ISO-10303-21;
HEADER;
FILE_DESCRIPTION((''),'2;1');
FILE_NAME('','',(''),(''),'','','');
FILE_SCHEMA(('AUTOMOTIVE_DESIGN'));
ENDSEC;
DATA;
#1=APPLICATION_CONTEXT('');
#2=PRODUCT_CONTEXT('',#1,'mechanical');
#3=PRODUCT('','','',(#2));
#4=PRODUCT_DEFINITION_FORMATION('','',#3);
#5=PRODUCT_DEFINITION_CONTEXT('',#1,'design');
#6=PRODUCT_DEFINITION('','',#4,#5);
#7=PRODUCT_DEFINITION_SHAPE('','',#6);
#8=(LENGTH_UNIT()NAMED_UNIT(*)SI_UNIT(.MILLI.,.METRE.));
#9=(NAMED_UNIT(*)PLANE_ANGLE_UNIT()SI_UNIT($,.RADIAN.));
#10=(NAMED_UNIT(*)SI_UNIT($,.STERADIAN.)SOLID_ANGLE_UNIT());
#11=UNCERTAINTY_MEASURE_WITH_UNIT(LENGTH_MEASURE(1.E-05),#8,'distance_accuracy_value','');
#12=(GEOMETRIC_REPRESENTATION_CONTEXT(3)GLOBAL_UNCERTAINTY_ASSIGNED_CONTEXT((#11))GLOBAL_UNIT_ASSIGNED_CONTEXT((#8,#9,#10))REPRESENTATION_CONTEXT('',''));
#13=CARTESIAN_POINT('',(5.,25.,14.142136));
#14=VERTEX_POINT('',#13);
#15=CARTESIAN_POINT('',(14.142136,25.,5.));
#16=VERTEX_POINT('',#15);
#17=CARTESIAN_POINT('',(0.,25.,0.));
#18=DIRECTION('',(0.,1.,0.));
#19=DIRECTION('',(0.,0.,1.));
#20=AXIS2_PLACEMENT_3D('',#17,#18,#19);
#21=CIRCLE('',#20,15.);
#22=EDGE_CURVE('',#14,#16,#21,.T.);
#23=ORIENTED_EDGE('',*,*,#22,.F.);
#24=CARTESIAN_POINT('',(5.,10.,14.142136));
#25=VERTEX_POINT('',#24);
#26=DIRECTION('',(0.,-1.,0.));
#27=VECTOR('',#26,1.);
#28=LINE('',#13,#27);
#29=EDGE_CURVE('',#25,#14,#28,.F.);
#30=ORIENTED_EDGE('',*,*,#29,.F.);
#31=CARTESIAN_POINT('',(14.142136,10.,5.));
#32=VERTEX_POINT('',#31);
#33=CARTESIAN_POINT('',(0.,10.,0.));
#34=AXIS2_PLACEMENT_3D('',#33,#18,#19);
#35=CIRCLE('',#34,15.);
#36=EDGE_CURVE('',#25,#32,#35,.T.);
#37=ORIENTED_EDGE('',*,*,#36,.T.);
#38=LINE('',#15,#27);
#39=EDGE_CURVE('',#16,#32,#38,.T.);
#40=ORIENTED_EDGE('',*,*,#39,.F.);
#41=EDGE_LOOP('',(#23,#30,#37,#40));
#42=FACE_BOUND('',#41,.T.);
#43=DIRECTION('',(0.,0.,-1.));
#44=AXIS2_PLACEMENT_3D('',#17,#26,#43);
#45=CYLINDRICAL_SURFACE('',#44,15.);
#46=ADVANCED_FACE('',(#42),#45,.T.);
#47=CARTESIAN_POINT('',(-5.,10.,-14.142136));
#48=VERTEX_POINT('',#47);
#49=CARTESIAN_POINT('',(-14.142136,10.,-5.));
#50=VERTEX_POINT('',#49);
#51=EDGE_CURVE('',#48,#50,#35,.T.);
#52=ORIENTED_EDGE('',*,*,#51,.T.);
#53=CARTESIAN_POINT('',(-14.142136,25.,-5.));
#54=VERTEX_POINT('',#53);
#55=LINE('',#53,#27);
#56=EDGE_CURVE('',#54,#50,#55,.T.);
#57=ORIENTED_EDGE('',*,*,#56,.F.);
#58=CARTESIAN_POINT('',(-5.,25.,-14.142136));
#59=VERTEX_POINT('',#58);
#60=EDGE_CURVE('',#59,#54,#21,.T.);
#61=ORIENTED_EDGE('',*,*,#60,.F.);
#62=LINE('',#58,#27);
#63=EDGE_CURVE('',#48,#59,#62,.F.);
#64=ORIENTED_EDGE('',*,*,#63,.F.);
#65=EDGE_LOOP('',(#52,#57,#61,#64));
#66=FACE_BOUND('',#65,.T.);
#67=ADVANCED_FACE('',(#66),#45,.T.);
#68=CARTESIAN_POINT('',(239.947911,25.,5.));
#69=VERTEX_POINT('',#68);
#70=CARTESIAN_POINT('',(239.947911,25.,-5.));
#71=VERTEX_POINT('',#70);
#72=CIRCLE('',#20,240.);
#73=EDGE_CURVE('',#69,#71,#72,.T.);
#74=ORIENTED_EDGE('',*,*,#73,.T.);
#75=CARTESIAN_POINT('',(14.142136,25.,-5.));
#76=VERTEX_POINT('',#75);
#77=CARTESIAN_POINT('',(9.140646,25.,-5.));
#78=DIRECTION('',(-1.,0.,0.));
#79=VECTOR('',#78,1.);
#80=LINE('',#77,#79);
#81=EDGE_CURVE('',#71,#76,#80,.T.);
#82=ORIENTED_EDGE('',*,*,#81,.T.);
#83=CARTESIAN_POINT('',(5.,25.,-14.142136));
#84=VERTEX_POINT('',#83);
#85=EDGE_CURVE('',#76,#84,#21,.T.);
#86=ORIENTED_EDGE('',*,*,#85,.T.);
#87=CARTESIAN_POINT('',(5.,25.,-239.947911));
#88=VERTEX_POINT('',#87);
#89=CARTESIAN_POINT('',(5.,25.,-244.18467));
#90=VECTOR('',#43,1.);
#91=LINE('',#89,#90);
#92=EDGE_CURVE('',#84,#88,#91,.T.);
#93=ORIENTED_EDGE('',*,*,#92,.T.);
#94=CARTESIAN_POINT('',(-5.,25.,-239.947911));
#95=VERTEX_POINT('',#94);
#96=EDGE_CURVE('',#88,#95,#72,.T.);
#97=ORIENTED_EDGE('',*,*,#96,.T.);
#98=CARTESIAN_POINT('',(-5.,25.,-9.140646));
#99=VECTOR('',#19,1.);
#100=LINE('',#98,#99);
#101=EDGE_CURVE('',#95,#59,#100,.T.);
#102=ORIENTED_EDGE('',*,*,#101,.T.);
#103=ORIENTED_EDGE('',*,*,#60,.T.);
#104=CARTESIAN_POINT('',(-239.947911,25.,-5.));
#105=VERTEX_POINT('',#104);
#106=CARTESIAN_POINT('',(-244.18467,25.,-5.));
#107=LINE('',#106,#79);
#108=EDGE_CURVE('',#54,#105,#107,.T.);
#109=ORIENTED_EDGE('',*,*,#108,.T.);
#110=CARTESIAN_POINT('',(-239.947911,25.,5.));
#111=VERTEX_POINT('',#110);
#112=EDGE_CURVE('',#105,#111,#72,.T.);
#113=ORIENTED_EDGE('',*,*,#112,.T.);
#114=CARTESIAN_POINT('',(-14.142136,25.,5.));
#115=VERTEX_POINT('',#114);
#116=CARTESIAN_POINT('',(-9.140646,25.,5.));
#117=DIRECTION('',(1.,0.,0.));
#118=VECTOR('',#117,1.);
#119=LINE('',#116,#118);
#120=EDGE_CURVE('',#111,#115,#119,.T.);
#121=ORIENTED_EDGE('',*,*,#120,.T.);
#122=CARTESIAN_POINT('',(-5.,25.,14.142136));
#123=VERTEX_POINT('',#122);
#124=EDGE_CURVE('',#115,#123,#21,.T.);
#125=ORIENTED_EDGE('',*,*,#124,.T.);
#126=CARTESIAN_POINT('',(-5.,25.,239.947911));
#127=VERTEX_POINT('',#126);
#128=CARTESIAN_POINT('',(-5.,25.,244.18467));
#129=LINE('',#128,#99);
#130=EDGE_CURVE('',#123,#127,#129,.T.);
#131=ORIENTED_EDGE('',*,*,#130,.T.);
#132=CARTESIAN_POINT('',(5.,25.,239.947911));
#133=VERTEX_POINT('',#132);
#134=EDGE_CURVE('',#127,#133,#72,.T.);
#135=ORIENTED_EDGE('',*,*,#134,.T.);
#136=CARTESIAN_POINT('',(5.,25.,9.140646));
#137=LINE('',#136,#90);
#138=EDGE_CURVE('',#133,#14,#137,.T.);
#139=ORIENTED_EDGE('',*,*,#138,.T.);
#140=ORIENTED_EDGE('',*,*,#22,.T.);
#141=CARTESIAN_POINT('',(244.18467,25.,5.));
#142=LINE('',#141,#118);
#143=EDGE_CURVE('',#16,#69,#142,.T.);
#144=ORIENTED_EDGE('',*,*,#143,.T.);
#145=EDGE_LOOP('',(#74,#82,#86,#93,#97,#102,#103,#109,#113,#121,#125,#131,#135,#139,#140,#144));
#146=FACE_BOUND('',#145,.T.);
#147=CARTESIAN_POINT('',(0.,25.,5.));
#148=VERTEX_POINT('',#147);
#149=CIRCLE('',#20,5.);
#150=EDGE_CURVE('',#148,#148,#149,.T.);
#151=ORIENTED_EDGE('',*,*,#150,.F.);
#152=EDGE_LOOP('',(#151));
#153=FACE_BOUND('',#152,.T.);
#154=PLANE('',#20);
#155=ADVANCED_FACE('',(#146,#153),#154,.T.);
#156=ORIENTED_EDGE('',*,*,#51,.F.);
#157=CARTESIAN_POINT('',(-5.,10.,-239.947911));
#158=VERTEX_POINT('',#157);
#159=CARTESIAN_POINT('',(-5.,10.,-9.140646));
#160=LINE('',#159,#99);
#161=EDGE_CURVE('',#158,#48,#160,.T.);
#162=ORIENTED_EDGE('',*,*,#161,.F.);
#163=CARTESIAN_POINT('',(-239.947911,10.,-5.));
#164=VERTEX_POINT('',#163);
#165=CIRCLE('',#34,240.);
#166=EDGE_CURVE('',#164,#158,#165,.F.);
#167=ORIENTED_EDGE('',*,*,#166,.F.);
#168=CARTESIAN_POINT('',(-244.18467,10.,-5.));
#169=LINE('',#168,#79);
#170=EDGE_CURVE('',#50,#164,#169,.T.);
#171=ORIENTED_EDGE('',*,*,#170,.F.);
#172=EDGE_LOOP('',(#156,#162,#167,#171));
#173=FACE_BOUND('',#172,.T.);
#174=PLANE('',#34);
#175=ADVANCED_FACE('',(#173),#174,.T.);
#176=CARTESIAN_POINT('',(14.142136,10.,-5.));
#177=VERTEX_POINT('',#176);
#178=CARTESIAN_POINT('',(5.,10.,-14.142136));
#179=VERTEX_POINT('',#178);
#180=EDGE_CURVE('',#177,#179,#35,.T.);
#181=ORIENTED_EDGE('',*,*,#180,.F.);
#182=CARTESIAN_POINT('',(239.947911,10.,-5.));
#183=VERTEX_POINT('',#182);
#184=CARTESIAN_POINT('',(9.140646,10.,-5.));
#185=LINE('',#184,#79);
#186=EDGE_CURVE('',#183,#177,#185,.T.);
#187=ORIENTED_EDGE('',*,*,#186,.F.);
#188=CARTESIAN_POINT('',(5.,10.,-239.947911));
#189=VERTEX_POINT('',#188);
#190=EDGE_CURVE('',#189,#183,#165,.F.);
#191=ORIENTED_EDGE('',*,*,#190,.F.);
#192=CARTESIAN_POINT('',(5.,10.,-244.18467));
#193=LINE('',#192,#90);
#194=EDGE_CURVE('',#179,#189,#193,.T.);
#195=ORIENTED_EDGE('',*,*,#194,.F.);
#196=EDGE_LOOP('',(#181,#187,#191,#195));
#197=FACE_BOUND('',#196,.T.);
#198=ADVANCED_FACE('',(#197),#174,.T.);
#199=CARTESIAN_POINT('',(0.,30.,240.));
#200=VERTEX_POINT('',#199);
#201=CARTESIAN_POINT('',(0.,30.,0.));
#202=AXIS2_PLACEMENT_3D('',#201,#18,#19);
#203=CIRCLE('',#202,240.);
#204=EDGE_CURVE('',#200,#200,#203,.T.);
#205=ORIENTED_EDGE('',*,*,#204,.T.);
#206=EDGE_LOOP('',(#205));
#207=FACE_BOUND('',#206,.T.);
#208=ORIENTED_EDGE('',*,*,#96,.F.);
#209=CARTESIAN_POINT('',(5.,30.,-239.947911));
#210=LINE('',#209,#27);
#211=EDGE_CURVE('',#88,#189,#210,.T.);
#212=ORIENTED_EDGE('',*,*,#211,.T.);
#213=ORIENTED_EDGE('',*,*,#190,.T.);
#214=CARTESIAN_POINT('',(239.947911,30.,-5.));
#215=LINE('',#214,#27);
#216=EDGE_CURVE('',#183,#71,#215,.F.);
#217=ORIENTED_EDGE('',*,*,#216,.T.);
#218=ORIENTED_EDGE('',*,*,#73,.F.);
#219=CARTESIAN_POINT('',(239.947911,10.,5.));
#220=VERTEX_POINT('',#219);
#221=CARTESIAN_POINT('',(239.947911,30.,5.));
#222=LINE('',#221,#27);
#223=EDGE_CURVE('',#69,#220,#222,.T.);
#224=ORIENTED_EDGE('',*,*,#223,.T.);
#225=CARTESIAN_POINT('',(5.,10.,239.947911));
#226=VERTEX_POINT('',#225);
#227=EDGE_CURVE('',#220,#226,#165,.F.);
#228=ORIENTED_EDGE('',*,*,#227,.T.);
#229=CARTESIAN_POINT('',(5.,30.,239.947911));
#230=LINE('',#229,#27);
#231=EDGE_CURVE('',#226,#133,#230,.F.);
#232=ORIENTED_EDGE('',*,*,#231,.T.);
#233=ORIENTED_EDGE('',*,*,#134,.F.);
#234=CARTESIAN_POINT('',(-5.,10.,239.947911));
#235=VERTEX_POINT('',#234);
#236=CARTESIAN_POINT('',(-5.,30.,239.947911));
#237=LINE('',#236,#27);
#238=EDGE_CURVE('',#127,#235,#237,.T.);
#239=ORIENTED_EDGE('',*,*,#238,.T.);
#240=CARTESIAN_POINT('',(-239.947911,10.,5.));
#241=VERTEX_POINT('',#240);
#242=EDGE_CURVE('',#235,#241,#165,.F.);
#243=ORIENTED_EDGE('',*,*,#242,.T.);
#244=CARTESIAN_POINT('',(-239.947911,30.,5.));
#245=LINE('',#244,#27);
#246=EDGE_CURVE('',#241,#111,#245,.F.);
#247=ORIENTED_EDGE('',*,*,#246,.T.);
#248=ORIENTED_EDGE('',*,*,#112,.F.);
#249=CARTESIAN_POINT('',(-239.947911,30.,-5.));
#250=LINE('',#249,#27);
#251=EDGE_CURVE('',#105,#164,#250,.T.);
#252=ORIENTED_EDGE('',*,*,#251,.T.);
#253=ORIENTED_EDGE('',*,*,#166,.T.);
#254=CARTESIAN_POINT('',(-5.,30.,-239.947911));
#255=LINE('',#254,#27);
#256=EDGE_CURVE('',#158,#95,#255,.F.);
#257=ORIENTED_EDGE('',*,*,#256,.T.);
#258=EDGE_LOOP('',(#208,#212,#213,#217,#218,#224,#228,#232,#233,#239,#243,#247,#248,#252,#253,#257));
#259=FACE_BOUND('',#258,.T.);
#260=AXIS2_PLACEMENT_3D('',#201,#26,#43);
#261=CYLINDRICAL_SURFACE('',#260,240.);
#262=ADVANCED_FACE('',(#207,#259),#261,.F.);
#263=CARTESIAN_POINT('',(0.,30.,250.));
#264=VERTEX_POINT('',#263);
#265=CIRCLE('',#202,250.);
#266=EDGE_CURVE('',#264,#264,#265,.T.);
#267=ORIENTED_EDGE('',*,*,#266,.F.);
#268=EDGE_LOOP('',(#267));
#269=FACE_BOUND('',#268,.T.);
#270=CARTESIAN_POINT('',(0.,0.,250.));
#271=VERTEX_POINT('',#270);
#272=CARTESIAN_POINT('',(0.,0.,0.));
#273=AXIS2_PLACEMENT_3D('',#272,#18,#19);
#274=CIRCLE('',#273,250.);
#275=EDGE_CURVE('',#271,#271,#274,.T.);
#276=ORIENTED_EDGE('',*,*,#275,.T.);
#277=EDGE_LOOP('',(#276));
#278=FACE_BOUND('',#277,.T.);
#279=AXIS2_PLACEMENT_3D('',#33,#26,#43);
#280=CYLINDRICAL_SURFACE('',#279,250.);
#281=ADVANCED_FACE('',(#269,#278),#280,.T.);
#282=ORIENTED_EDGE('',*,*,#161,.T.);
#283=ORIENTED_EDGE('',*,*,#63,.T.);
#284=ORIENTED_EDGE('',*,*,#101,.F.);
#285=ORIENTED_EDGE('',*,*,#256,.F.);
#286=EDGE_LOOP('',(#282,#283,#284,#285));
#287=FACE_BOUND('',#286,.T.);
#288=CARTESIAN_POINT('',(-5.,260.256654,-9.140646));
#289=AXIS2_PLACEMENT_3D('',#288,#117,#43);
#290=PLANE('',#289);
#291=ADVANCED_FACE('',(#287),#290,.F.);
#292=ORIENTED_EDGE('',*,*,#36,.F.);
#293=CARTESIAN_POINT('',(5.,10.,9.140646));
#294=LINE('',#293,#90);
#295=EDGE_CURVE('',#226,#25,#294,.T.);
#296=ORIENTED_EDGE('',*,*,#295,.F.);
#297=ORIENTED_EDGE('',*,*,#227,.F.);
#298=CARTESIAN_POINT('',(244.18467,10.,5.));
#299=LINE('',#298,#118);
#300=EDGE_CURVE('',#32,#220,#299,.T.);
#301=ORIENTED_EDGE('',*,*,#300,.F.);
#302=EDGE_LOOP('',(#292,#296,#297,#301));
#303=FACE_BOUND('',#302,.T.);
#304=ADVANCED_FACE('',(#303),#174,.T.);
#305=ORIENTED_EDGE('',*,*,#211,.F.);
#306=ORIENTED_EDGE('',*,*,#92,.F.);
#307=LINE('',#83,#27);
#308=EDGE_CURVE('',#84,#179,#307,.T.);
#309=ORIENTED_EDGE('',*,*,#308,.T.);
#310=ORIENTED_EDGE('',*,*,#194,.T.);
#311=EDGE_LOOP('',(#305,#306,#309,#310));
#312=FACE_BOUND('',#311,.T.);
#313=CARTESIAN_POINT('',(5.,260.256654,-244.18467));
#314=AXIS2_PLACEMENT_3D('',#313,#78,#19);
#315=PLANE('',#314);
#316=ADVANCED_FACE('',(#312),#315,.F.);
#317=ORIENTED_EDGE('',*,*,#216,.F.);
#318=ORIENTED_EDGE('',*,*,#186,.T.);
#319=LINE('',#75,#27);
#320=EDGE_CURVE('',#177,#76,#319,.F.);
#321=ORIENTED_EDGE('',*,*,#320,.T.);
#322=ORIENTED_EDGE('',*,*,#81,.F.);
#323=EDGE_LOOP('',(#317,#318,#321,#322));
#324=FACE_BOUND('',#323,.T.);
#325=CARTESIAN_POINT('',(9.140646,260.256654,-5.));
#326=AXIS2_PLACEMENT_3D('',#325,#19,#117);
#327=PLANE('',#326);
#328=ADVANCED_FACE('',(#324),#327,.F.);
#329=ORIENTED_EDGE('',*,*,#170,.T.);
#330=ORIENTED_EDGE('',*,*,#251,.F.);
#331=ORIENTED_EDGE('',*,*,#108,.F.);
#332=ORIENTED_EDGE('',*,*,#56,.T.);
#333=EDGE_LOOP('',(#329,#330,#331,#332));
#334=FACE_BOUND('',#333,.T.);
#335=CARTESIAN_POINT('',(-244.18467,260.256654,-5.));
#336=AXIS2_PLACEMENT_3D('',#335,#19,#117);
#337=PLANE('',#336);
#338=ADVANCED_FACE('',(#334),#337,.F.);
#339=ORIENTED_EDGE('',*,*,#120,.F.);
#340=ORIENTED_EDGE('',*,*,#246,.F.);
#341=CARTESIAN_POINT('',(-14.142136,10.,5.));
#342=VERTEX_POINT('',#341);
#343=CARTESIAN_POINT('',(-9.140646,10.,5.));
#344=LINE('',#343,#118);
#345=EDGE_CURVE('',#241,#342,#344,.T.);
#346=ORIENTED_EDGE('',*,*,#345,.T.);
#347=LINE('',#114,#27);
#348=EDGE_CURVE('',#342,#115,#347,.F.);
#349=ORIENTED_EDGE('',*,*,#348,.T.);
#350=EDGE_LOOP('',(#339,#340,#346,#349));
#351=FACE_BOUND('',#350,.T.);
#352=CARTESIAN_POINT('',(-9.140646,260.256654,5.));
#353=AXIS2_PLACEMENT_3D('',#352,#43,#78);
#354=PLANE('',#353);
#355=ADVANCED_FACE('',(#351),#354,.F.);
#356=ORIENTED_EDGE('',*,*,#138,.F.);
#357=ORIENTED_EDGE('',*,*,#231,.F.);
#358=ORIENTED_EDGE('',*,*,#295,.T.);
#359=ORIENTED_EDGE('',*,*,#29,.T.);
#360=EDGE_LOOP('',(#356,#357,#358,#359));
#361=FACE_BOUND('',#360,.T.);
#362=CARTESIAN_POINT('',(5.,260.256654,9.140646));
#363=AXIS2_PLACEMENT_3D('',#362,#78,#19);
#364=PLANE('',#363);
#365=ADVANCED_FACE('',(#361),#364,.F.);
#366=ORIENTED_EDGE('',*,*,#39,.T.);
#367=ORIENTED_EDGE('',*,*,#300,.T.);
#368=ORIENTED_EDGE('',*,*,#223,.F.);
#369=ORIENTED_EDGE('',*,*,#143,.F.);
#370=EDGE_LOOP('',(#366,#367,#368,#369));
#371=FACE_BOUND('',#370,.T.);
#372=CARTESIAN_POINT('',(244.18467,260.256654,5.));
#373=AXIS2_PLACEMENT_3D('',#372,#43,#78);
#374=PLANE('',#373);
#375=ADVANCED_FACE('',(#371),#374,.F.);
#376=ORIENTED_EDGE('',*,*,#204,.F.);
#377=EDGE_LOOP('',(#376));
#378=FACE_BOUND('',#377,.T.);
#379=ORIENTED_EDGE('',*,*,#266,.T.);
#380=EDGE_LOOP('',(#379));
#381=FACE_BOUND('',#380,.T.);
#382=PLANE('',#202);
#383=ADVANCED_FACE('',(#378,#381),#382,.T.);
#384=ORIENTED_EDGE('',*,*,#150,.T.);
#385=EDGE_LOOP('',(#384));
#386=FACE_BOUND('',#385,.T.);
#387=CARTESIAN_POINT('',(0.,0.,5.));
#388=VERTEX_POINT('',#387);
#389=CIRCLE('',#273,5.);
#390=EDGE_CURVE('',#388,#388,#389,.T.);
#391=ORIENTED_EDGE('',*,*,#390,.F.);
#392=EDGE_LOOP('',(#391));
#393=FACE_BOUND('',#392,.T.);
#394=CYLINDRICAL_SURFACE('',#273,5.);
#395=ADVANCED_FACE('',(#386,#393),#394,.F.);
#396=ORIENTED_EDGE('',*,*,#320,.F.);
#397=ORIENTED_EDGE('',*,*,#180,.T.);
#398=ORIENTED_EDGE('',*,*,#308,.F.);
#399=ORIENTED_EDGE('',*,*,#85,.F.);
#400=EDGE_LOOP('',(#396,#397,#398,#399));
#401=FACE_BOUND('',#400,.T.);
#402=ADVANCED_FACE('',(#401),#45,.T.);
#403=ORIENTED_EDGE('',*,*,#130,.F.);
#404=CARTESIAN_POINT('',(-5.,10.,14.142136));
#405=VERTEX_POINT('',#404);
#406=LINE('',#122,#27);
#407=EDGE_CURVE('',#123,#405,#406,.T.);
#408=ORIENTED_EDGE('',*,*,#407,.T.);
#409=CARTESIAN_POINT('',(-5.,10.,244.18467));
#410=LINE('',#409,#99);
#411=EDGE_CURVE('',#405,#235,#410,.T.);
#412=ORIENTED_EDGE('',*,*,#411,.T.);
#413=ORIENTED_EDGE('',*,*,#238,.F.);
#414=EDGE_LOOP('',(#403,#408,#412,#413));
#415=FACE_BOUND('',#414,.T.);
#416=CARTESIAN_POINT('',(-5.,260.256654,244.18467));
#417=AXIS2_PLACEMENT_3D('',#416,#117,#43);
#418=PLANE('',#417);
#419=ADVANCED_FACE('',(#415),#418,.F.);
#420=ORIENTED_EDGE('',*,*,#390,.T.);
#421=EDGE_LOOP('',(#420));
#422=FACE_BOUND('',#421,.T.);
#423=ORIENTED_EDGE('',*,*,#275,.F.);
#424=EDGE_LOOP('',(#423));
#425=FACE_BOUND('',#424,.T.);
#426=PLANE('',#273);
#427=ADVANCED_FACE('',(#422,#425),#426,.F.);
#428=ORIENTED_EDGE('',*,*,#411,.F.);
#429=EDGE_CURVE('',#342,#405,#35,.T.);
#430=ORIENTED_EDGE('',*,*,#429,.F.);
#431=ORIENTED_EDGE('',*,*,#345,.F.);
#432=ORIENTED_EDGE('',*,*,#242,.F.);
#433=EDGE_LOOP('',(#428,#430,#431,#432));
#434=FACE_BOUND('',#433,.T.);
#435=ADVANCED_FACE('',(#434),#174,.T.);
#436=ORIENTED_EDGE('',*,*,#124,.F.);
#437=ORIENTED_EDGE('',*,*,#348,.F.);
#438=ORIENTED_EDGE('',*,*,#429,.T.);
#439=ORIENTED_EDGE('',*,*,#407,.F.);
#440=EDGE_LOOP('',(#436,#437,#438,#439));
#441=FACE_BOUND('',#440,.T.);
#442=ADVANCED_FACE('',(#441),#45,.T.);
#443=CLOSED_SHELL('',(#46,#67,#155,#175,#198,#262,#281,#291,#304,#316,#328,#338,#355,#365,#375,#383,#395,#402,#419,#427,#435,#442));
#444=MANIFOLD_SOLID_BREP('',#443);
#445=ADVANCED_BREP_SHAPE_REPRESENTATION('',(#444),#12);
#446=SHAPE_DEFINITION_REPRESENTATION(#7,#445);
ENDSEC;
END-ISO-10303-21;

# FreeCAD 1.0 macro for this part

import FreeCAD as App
import Part
import Sketcher
from FreeCAD import Vector


def add_polygon(sketch, points):
    """Adds a closed chain of lines whose ends are joined by coincident constraints."""
    first, n = sketch.GeometryCount, len(points)
    for a, b in zip(points, points[1:] + points[:1]):
        sketch.addGeometry(Part.LineSegment(App.Vector(*a, 0), App.Vector(*b, 0)), False)
    for i in range(n):
        sketch.addConstraint(Sketcher.Constraint("Coincident", first + i, 2, first + (i + 1) % n, 1))

doc = App.newDocument("Part")
params = doc.addObject("Spreadsheet::Sheet", "Params")
for row, (alias, value) in enumerate([
    ("sketch1_diameter", "500 mm"),
    ("pad1_length", "10 mm"),
    ("sketch2_diameter", "500 mm"),
    ("sketch2_diameter2", "480 mm"),
    ("pad2_length", "20 mm"),
    ("sketch3_diameter", "30 mm"),
    ("pad3_length", "15 mm"),
    ("sketch4_diameter", "10 mm"),
    ("sketch5_width", "10 mm"),
    ("pad4_length", "15 mm"),
], start=1):
    params.set(f"A{row}", alias)
    params.set(f"B{row}", "=" + value)
    params.setAlias(f"B{row}", alias)

body = doc.addObject("PartDesign::Body", "Body")

# Sketch on XZ plane
sketch1 = body.newObject("Sketcher::SketchObject", "Sketch")
sketch1.AttachmentSupport = (doc.getObject("XZ_Plane"), [""])
sketch1.MapMode = "FlatFace"
sketch1.addGeometry(Part.Circle(Vector(0, 0, 0), Vector(0, 0, 1), 250), False)
sketch1.addConstraint([
    Sketcher.Constraint("Coincident", 0, 3, -1, 1),
    Sketcher.Constraint("Diameter", 0, 500.0),
])
sketch1.setExpression("Constraints[1]", "Params.sketch1_diameter")
pad1 = body.newObject("PartDesign::Pad", "Pad")
pad1.Profile = sketch1
pad1.setExpression("Length", "Params.pad1_length")
pad1.Reversed = True

# Sketch on XZ plane
sketch2 = body.newObject("Sketcher::SketchObject", "Sketch001")
sketch2.AttachmentSupport = (doc.getObject("XZ_Plane"), [""])
sketch2.MapMode = "FlatFace"
sketch2.AttachmentOffset = App.Placement(Vector(0, 0, -10), App.Rotation())
sketch2.addGeometry([
    Part.Circle(Vector(0, 0, 0), Vector(0, 0, 1), 250),
    Part.Circle(Vector(0, 0, 0), Vector(0, 0, 1), 240),
], False)
sketch2.addConstraint([
    Sketcher.Constraint("Coincident", 0, 3, -1, 1),
    Sketcher.Constraint("Coincident", 1, 3, -1, 1),
    Sketcher.Constraint("Diameter", 0, 500.0),
    Sketcher.Constraint("Diameter", 1, 480.0),
])
sketch2.setExpression("Constraints[2]", "Params.sketch2_diameter")
sketch2.setExpression("Constraints[3]", "Params.sketch2_diameter2")
pad2 = body.newObject("PartDesign::Pad", "Pad001")
pad2.Profile = sketch2
pad2.setExpression("Length", "Params.pad2_length")
pad2.Reversed = True

# Sketch on XZ plane
sketch3 = body.newObject("Sketcher::SketchObject", "Sketch002")
sketch3.AttachmentSupport = (doc.getObject("XZ_Plane"), [""])
sketch3.MapMode = "FlatFace"
sketch3.AttachmentOffset = App.Placement(Vector(0, 0, -10), App.Rotation())
sketch3.addGeometry(Part.Circle(Vector(0, 0, 0), Vector(0, 0, 1), 15), False)
sketch3.addConstraint([
    Sketcher.Constraint("Coincident", 0, 3, -1, 1),
    Sketcher.Constraint("Diameter", 0, 30.0),
])
sketch3.setExpression("Constraints[1]", "Params.sketch3_diameter")
pad3 = body.newObject("PartDesign::Pad", "Pad002")
pad3.Profile = sketch3
pad3.setExpression("Length", "Params.pad3_length")
pad3.Reversed = True

# Sketch on XZ plane
sketch4 = body.newObject("Sketcher::SketchObject", "Sketch003")
sketch4.AttachmentSupport = (doc.getObject("XZ_Plane"), [""])
sketch4.MapMode = "FlatFace"
sketch4.AttachmentOffset = App.Placement(Vector(0, 0, -25), App.Rotation())
sketch4.addGeometry(Part.Circle(Vector(0, 0, 0), Vector(0, 0, 1), 5), False)
sketch4.addConstraint([
    Sketcher.Constraint("Coincident", 0, 3, -1, 1),
    Sketcher.Constraint("Diameter", 0, 10.0),
])
sketch4.setExpression("Constraints[1]", "Params.sketch4_diameter")
pocket1 = body.newObject("PartDesign::Pocket", "Pocket")
pocket1.Profile = sketch4
pocket1.Type = "ThroughAll"
pocket1.Reversed = True

# Sketch on XZ plane
sketch5 = body.newObject("Sketcher::SketchObject", "Sketch004")
sketch5.AttachmentSupport = (doc.getObject("XZ_Plane"), [""])
sketch5.MapMode = "FlatFace"
sketch5.AttachmentOffset = App.Placement(Vector(0, 0, -10), App.Rotation())
add_polygon(sketch5, [(9, -5), (9, 5), (244, 5), (244, -5)])  # lines 0-3
add_polygon(sketch5, [(-5, 9), (-5, 244), (5, 244), (5, 9)])  # lines 4-7
add_polygon(sketch5, [(-244, -5), (-244, 5), (-9, 5), (-9, -5)])  # lines 8-11
add_polygon(sketch5, [(-5, -244), (-5, -9), (5, -9), (5, -244)])  # lines 12-15
sketch5.addConstraint([
    Sketcher.Constraint("Vertical", 0),
    Sketcher.Constraint("Horizontal", 1),
    Sketcher.Constraint("Vertical", 2),
    Sketcher.Constraint("Horizontal", 3),
    Sketcher.Constraint("Vertical", 4),
    Sketcher.Constraint("Horizontal", 5),
    Sketcher.Constraint("Vertical", 6),
    Sketcher.Constraint("Horizontal", 7),
    Sketcher.Constraint("Vertical", 8),
    Sketcher.Constraint("Horizontal", 9),
    Sketcher.Constraint("Vertical", 10),
    Sketcher.Constraint("Horizontal", 11),
    Sketcher.Constraint("Vertical", 12),
    Sketcher.Constraint("Horizontal", 13),
    Sketcher.Constraint("Vertical", 14),
    Sketcher.Constraint("Horizontal", 15),
    Sketcher.Constraint("Symmetric", 2, 2, 8, 2, -1, 1),
    Sketcher.Constraint("Symmetric", 0, 2, 10, 2, -1, 1),
    Sketcher.Constraint("Symmetric", 6, 2, 12, 2, -1, 1),
    Sketcher.Constraint("Symmetric", 4, 2, 14, 2, -1, 1),
    Sketcher.Constraint("Horizontal", 1, 2, 8, 2),
    Sketcher.Constraint("Vertical", 7, 2, 12, 2),
    Sketcher.Constraint("Equal", 15, 0),
    Sketcher.Constraint("Equal", 11, 4),
    Sketcher.Constraint("DistanceX", 5, 1, 5, 2, 10.0),
    Sketcher.Constraint("DistanceX", 1, 1, 1, 2, 235.044024),
    Sketcher.Constraint("DistanceX", -1, 1, 1, 2, 244.18467),
    Sketcher.Constraint("DistanceY", -1, 1, 4, 2, 244.18467),
])
sketch5.setExpression("Constraints[40]", "Params.sketch5_width")
pad4 = body.newObject("PartDesign::Pad", "Pad003")
pad4.Profile = sketch5
pad4.setExpression("Length", "Params.pad4_length")
pad4.Reversed = True

doc.recompute()
